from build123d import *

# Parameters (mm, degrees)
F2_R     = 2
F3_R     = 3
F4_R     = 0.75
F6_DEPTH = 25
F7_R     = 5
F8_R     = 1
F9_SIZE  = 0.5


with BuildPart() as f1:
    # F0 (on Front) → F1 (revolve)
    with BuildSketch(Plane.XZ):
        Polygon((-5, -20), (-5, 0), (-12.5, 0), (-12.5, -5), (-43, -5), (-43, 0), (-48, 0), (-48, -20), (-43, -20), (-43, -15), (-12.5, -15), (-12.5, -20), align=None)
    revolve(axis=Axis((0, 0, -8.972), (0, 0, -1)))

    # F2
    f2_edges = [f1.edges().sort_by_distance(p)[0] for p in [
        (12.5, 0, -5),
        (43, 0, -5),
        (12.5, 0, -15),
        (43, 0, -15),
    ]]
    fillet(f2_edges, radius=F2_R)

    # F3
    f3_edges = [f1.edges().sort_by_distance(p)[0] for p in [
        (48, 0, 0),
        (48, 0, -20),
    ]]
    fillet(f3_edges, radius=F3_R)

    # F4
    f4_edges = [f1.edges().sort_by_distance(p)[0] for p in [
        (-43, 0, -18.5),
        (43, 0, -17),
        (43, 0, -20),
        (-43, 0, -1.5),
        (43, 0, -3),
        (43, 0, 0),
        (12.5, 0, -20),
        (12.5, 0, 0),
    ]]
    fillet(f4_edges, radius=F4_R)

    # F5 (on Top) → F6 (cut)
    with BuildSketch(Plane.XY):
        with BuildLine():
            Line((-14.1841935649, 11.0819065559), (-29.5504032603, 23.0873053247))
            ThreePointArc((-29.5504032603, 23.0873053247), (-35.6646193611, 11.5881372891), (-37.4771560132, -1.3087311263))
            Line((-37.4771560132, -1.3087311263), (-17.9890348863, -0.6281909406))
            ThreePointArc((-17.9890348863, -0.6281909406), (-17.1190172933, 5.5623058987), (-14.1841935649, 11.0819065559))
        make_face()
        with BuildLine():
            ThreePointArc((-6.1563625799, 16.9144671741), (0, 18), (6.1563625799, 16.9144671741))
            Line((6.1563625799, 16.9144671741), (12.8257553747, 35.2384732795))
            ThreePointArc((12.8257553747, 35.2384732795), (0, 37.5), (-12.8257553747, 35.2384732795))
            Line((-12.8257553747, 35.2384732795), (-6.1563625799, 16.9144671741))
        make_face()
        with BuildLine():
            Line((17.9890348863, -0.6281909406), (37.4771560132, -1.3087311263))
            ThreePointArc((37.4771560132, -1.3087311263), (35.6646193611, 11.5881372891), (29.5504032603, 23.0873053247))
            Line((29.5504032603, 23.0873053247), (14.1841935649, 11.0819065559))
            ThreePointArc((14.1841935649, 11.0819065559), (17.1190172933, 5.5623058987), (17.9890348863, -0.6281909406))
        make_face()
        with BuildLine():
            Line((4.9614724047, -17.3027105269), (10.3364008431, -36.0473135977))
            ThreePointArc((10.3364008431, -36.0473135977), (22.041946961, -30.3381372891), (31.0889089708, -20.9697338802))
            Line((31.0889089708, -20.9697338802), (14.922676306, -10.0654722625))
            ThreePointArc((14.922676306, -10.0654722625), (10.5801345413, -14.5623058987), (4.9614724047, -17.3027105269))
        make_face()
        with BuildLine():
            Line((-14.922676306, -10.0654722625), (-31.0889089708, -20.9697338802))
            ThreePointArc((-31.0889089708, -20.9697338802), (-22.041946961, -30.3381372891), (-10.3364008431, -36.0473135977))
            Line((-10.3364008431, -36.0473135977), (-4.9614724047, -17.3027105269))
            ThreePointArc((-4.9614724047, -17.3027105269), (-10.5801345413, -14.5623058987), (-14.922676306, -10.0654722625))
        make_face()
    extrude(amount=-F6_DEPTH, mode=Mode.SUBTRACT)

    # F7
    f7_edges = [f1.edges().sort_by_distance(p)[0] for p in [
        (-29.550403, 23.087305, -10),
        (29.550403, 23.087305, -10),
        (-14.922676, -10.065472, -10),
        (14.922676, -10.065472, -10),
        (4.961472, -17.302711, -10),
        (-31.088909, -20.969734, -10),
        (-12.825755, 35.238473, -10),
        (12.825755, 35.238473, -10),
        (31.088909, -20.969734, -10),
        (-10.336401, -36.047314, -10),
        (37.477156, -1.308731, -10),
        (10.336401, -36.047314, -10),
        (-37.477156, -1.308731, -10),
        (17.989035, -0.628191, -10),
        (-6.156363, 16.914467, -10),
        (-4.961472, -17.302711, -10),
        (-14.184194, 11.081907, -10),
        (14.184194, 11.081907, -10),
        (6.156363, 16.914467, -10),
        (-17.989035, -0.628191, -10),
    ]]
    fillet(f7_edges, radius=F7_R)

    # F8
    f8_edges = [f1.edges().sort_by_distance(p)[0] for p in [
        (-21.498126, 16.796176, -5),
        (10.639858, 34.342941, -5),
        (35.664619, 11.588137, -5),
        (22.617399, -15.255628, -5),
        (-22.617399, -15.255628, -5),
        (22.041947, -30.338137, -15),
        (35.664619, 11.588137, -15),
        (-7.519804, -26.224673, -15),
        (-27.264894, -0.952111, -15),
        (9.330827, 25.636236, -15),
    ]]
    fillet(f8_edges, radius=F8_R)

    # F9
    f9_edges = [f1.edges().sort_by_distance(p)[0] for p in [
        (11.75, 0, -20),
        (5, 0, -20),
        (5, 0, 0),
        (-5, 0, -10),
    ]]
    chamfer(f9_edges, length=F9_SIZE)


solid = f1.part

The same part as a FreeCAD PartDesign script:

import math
import FreeCAD as App
import Part
import Sketcher
Q = App.Units.Quantity


def edges_at(feature, points):
    """Names of the edges that pass closest to the given points."""
    edges = feature.Shape.Edges
    near = lambda p: min(range(len(edges)), key=lambda i: edges[i].distToShape(Part.Vertex(*p))[0])
    return sorted({f"Edge{near(p) + 1}" for p in points})

doc = App.newDocument("Part")
body = doc.addObject("PartDesign::Body", "Body")

sketch1 = doc.addObject("Sketcher::SketchObject", "Sketch")
body.addObject(sketch1)
sketch1.AttachmentSupport = (doc.XZ_Plane, [""])
sketch1.MapMode = "FlatFace"
sketch1.addGeometry([
    Part.LineSegment(App.Vector(-5, -20, 0), App.Vector(-5, 0, 0)),
    Part.LineSegment(App.Vector(-5, 0, 0), App.Vector(-12, 0, 0)),
    Part.LineSegment(App.Vector(-12, 0, 0), App.Vector(-12, -5, 0)),
    Part.LineSegment(App.Vector(-12, -5, 0), App.Vector(-43, -5, 0)),
    Part.LineSegment(App.Vector(-43, -5, 0), App.Vector(-43, 0, 0)),
    Part.LineSegment(App.Vector(-43, 0, 0), App.Vector(-48, 0, 0)),
    Part.LineSegment(App.Vector(-48, 0, 0), App.Vector(-48, -20, 0)),
    Part.LineSegment(App.Vector(-48, -20, 0), App.Vector(-43, -20, 0)),
    Part.LineSegment(App.Vector(-43, -20, 0), App.Vector(-43, -15, 0)),
    Part.LineSegment(App.Vector(-43, -15, 0), App.Vector(-12, -15, 0)),
    Part.LineSegment(App.Vector(-12, -15, 0), App.Vector(-12, -20, 0)),
    Part.LineSegment(App.Vector(-12, -20, 0), App.Vector(-5, -20, 0)),
], False)
sketch1.addConstraint([
    Sketcher.Constraint("Coincident", 0, 2, 1, 1),
    Sketcher.Constraint("Coincident", 1, 2, 2, 1),
    Sketcher.Constraint("Coincident", 2, 2, 3, 1),
    Sketcher.Constraint("Coincident", 3, 2, 4, 1),
    Sketcher.Constraint("Coincident", 4, 2, 5, 1),
    Sketcher.Constraint("Coincident", 5, 2, 6, 1),
    Sketcher.Constraint("Coincident", 6, 2, 7, 1),
    Sketcher.Constraint("Coincident", 7, 2, 8, 1),
    Sketcher.Constraint("Coincident", 8, 2, 9, 1),
    Sketcher.Constraint("Coincident", 9, 2, 10, 1),
    Sketcher.Constraint("Coincident", 10, 2, 11, 1),
    Sketcher.Constraint("Coincident", 11, 2, 0, 1),
    Sketcher.Constraint("Vertical", 0),
    Sketcher.Constraint("Horizontal", 1),
    Sketcher.Constraint("Vertical", 2),
    Sketcher.Constraint("Horizontal", 3),
    Sketcher.Constraint("Vertical", 4),
    Sketcher.Constraint("Horizontal", 5),
    Sketcher.Constraint("Vertical", 6),
    Sketcher.Constraint("Horizontal", 7),
    Sketcher.Constraint("Vertical", 8),
    Sketcher.Constraint("Horizontal", 9),
    Sketcher.Constraint("Vertical", 10),
    Sketcher.Constraint("Horizontal", 11),
    Sketcher.Constraint("PointOnObject", 0, 2, -1),
    Sketcher.Constraint("PointOnObject", 4, 2, -1),
    Sketcher.Constraint("Horizontal", 7, 2, 10, 2),
    Sketcher.Constraint("Vertical", 4, 2, 7, 2),
    Sketcher.Constraint("Vertical", 2, 2, 9, 2),
    Sketcher.Constraint("Equal", 7, 2),
    Sketcher.Constraint("Equal", 4, 8),
    Sketcher.Constraint("DistanceX", 5, 2, 5, 1, 5.0),
    Sketcher.Constraint("DistanceY", 0, 1, 0, 2, 20.0),
    Sketcher.Constraint("DistanceX", 1, 2, 1, 1, 7.5),
    Sketcher.Constraint("DistanceX", 3, 2, 3, 1, 30.5),
    Sketcher.Constraint("DistanceX", 0, 2, -1, 1, 5.0),
])
revolution = doc.addObject("PartDesign::Revolution", "Revolution")
body.addObject(revolution)
revolution.Profile = sketch1
revolution.ReferenceAxis = (sketch1, ["V_Axis"])
revolution.Angle = 360
doc.recompute()

fillet = doc.addObject("PartDesign::Fillet", "Fillet")
body.addObject(fillet)
fillet.Base = (revolution, edges_at(revolution, [
    (12.5, 0, -5),
    (43, 0, -5),
    (12.5, 0, -15),
    (43, 0, -15),
]))
fillet.Radius = 2
doc.recompute()

fillet2 = doc.addObject("PartDesign::Fillet", "Fillet001")
body.addObject(fillet2)
fillet2.Base = (fillet, edges_at(fillet, [(48, 0, 0), (48, 0, -20)]))
fillet2.Radius = 3
doc.recompute()

fillet3 = doc.addObject("PartDesign::Fillet", "Fillet002")
body.addObject(fillet3)
fillet3.Base = (fillet2, edges_at(fillet2, [
    (-43, 0, -18.5),
    (43, 0, -17),
    (43, 0, -20),
    (-43, 0, -1.5),
    (43, 0, -3),
    (43, 0, 0),
    (12.5, 0, -20),
    (12.5, 0, 0),
]))
fillet3.Radius = 0.75

sketch2 = doc.addObject("Sketcher::SketchObject", "Sketch001")
body.addObject(sketch2)
sketch2.AttachmentSupport = (doc.XY_Plane, [""])
sketch2.MapMode = "FlatFace"
sketch2.addGeometry([
    Part.LineSegment(App.Vector(-14, 11, 0), App.Vector(-30, 23, 0)),
    Part.ArcOfCircle(Part.Circle(App.Vector(0, 0, 0), App.Vector(0, 0, 1), 37), math.radians(142), math.radians(182)),
    Part.LineSegment(App.Vector(-37, -1, 0), App.Vector(-18, -1, 0)),
    Part.ArcOfCircle(Part.Circle(App.Vector(0, 0, 0), App.Vector(0, 0, 1), 18), math.radians(142), math.radians(182)),
    Part.ArcOfCircle(Part.Circle(App.Vector(0, 0, 0), App.Vector(0, 0, 1), 18), math.radians(70), math.radians(110)),
    Part.LineSegment(App.Vector(6, 17, 0), App.Vector(13, 35, 0)),
    Part.ArcOfCircle(Part.Circle(App.Vector(0, 0, 0), App.Vector(0, 0, 1), 38), math.radians(70), math.radians(110)),
    Part.LineSegment(App.Vector(-13, 35, 0), App.Vector(-6, 17, 0)),
    Part.LineSegment(App.Vector(18, -1, 0), App.Vector(37, -1, 0)),
    Part.ArcOfCircle(Part.Circle(App.Vector(0, 0, 0), App.Vector(0, 0, 1), 37), math.radians(-2), math.radians(38)),
    Part.LineSegment(App.Vector(30, 23, 0), App.Vector(14, 11, 0)),
    Part.ArcOfCircle(Part.Circle(App.Vector(0, 0, 0), App.Vector(0, 0, 1), 18), math.radians(-2), math.radians(38)),
    Part.LineSegment(App.Vector(5, -17, 0), App.Vector(10, -36, 0)),
    Part.ArcOfCircle(Part.Circle(App.Vector(0, 0, 0), App.Vector(0, 0, 1), 37), math.radians(-74), math.radians(-34)),
    Part.LineSegment(App.Vector(31, -21, 0), App.Vector(15, -10, 0)),
    Part.ArcOfCircle(Part.Circle(App.Vector(0, 0, 0), App.Vector(0, 0, 1), 18), math.radians(-74), math.radians(-34)),
    Part.LineSegment(App.Vector(-15, -10, 0), App.Vector(-31, -21, 0)),
    Part.ArcOfCircle(Part.Circle(App.Vector(0, 0, 0), App.Vector(0, 0, 1), 37), math.radians(-146), math.radians(-106)),
    Part.LineSegment(App.Vector(-10, -36, 0), App.Vector(-5, -17, 0)),
    Part.ArcOfCircle(Part.Circle(App.Vector(0, 0, 0), App.Vector(0, 0, 1), 18), math.radians(-146), math.radians(-106)),
], False)
sketch2.addConstraint([
    Sketcher.Constraint("Coincident", 0, 2, 1, 1),
    Sketcher.Constraint("Coincident", 1, 2, 2, 1),
    Sketcher.Constraint("Coincident", 2, 2, 3, 2),
    Sketcher.Constraint("Coincident", 3, 1, 0, 1),
    Sketcher.Constraint("Coincident", 4, 1, 5, 1),
    Sketcher.Constraint("Coincident", 5, 2, 6, 1),
    Sketcher.Constraint("Coincident", 6, 2, 7, 1),
    Sketcher.Constraint("Coincident", 7, 2, 4, 2),
    Sketcher.Constraint("Coincident", 8, 2, 9, 1),
    Sketcher.Constraint("Coincident", 9, 2, 10, 1),
    Sketcher.Constraint("Coincident", 10, 2, 11, 2),
    Sketcher.Constraint("Coincident", 11, 1, 8, 1),
    Sketcher.Constraint("Coincident", 12, 2, 13, 1),
    Sketcher.Constraint("Coincident", 13, 2, 14, 1),
    Sketcher.Constraint("Coincident", 14, 2, 15, 2),
    Sketcher.Constraint("Coincident", 15, 1, 12, 1),
    Sketcher.Constraint("Coincident", 16, 2, 17, 1),
    Sketcher.Constraint("Coincident", 17, 2, 18, 1),
    Sketcher.Constraint("Coincident", 18, 2, 19, 2),
    Sketcher.Constraint("Coincident", 19, 1, 16, 1),
    Sketcher.Constraint("Coincident", 1, 3, -1, 1),
    Sketcher.Constraint("Coincident", 3, 3, -1, 1),
    Sketcher.Constraint("Coincident", 4, 3, -1, 1),
    Sketcher.Constraint("Coincident", 6, 3, -1, 1),
    Sketcher.Constraint("Coincident", 9, 3, -1, 1),
    Sketcher.Constraint("Coincident", 11, 3, -1, 1),
    Sketcher.Constraint("Coincident", 13, 3, -1, 1),
    Sketcher.Constraint("Coincident", 15, 3, -1, 1),
    Sketcher.Constraint("Coincident", 17, 3, -1, 1),
    Sketcher.Constraint("Coincident", 19, 3, -1, 1),
    Sketcher.Constraint("Equal", 3, 4),
    Sketcher.Constraint("Equal", 1, 6),
    Sketcher.Constraint("Equal", 6, 9),
    Sketcher.Constraint("Equal", 4, 11),
    Sketcher.Constraint("Equal", 9, 13),
    Sketcher.Constraint("Equal", 11, 15),
    Sketcher.Constraint("Equal", 13, 17),
    Sketcher.Constraint("Equal", 15, 19),
    Sketcher.Constraint("Horizontal", 5, 2, 6, 2),
    Sketcher.Constraint("Horizontal", 4, 1, 7, 2),
    Sketcher.Constraint("Horizontal", 1, 2, 8, 2),
    Sketcher.Constraint("Horizontal", 0, 2, 9, 2),
    Sketcher.Constraint("Horizontal", 3, 1, 10, 2),
    Sketcher.Constraint("Horizontal", 2, 2, 11, 1),
    Sketcher.Constraint("Horizontal", 13, 2, 16, 2),
    Sketcher.Constraint("Horizontal", 12, 2, 17, 2),
    Sketcher.Constraint("Horizontal", 15, 1, 18, 2),
    Sketcher.Constraint("Horizontal", 14, 2, 19, 1),
    Sketcher.Constraint("Radius", 3, 18.0),
    Sketcher.Constraint("Radius", 1, 37.5),
    Sketcher.Constraint("Angle", 0, Q("142 deg")),
    Sketcher.Constraint("Angle", 2, Q("2 deg")),
    Sketcher.Constraint("Angle", 5, Q("70 deg")),
    Sketcher.Constraint("Angle", 12, Q("-74 deg")),
    Sketcher.Constraint("Angle", 14, Q("146 deg")),
    Sketcher.Constraint("DistanceX", -1, 1, 12, 2, 10.336401),
    Sketcher.Constraint("DistanceY", 8, 2, 4, 1, 18.223198),
    Sketcher.Constraint("DistanceY", 1, 2, -1, 1, 1.308731),
    Sketcher.Constraint("DistanceX", -1, 1, 13, 2, 31.088909),
    Sketcher.Constraint("DistanceX", 2, 2, 3, 1, 3.804841),
])
pocket1 = doc.addObject("PartDesign::Pocket", "Pocket")
body.addObject(pocket1)
pocket1.Profile = sketch2
pocket1.Length = 25
doc.recompute()

fillet4 = doc.addObject("PartDesign::Fillet", "Fillet003")
body.addObject(fillet4)
fillet4.Base = (pocket1, edges_at(pocket1, [
    (-29.55, 23.087, -10),
    (29.55, 23.087, -10),
    (-14.923, -10.065, -10),
    (14.923, -10.065, -10),
    (4.961, -17.303, -10),
    (-31.089, -20.97, -10),
    (-12.826, 35.238, -10),
    (12.826, 35.238, -10),
    (31.089, -20.97, -10),
    (-10.336, -36.047, -10),
    (37.477, -1.309, -10),
    (10.336, -36.047, -10),
    (-37.477, -1.309, -10),
    (17.989, -0.628, -10),
    (-6.156, 16.914, -10),
    (-4.961, -17.303, -10),
    (-14.184, 11.082, -10),
    (14.184, 11.082, -10),
    (6.156, 16.914, -10),
    (-17.989, -0.628, -10),
]))
fillet4.Radius = 5
doc.recompute()

fillet5 = doc.addObject("PartDesign::Fillet", "Fillet004")
body.addObject(fillet5)
fillet5.Base = (fillet4, edges_at(fillet4, [
    (-21.498, 16.796, -5),
    (10.64, 34.343, -5),
    (35.665, 11.588, -5),
    (22.617, -15.256, -5),
    (-22.617, -15.256, -5),
    (22.042, -30.338, -15),
    (35.665, 11.588, -15),
    (-7.52, -26.225, -15),
    (-27.265, -0.952, -15),
    (9.331, 25.636, -15),
]))
fillet5.Radius = 1
doc.recompute()

chamfer = doc.addObject("PartDesign::Chamfer", "Chamfer")
body.addObject(chamfer)
chamfer.Base = (fillet5, edges_at(fillet5, [
    (11.75, 0, -20),
    (5, 0, -20),
    (5, 0, 0),
    (-5, 0, -10),
]))
chamfer.Size = 0.5

doc.recompute()
